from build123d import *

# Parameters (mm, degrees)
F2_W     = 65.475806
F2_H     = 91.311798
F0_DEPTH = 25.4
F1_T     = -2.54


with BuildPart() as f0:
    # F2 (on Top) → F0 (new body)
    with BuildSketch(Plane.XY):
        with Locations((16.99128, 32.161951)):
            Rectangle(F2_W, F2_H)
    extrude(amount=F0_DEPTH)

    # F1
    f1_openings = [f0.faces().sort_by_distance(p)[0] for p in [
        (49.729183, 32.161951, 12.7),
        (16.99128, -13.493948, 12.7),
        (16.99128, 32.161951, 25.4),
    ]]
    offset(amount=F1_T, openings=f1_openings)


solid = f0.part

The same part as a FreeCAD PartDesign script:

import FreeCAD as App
import Part
import Sketcher
from FreeCAD import Vector
Q = App.Units.Quantity


def faces_at(feature, points):
    """Names of the faces that lie closest to the given points."""
    faces = feature.Shape.Faces
    near = lambda p: min(range(len(faces)), key=lambda i: faces[i].distToShape(Part.Vertex(*p))[0])
    return sorted({f"Face{near(p) + 1}" for p in points})

doc = App.newDocument("Part")
body = doc.addObject("PartDesign::Body", "Body")

# Sketch on XY plane
sketch1 = body.newObject("Sketcher::SketchObject", "Sketch")
sketch1.AttachmentSupport = (doc.getObject("XY_Plane"), [""])
sketch1.MapMode = "FlatFace"
sketch1.addGeometry([
    Part.LineSegment(Vector(-16, 78, 0), Vector(-16, -13, 0)),
    Part.LineSegment(Vector(-16, -13, 0), Vector(50, -13, 0)),
    Part.LineSegment(Vector(50, -13, 0), Vector(50, 78, 0)),
    Part.LineSegment(Vector(50, 78, 0), Vector(-16, 78, 0)),
], False)
sketch1.addConstraint([
    Sketcher.Constraint("Coincident", 0, 2, 1, 1),
    Sketcher.Constraint("Coincident", 1, 2, 2, 1),
    Sketcher.Constraint("Coincident", 2, 2, 3, 1),
    Sketcher.Constraint("Coincident", 3, 2, 0, 1),
    Sketcher.Constraint("Vertical", 0),
    Sketcher.Constraint("Horizontal", 1),
    Sketcher.Constraint("Vertical", 2),
    Sketcher.Constraint("Horizontal", 3),
    Sketcher.Constraint("DistanceY", 0, 2, 0, 1, 91.311798),
    Sketcher.Constraint("DistanceX", 1, 1, 1, 2, 65.475806),
    Sketcher.Constraint("DistanceY", -1, 1, 2, 2, 77.81785),
    Sketcher.Constraint("DistanceX", 0, 2, -1, 1, 15.746623),
])
pad1 = body.newObject("PartDesign::Pad", "Pad")
pad1.Profile = sketch1
pad1.Length = Q("1 in")
doc.recompute()

thickness = body.newObject("PartDesign::Thickness", "Thickness")
thickness.Base = (pad1, faces_at(pad1, [(49.729, 32.162, 12.7), (16.991, -13.494, 12.7), (16.991, 32.162, 25.4)]))
thickness.Value = Q("0.1 in")
thickness.Reversed = True
thickness.Join = "Arc"

doc.recompute()
